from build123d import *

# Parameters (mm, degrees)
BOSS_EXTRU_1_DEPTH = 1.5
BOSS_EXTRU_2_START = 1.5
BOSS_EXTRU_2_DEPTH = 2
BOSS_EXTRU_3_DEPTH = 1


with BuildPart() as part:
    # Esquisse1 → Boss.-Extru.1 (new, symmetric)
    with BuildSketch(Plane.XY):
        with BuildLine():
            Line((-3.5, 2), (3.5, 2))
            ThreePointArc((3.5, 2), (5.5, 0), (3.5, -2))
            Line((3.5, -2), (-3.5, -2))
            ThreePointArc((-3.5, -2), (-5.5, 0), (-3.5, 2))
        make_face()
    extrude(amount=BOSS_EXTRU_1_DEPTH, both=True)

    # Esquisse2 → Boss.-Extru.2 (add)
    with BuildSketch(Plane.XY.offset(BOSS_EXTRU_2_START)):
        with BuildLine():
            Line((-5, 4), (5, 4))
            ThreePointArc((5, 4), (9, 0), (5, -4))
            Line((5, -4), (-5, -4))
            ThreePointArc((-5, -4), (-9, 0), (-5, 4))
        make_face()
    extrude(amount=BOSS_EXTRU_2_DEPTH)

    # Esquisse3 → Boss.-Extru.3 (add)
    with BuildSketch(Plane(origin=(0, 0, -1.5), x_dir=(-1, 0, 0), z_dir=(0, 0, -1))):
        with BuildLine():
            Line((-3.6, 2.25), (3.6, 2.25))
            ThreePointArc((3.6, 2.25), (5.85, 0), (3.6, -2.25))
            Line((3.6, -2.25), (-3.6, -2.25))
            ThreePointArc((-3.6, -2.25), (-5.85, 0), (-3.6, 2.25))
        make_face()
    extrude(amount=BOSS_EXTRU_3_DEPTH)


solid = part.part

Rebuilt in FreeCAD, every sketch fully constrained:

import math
import FreeCAD as App
import Part
import Sketcher
from FreeCAD import Vector
Q = App.Units.Quantity

doc = App.newDocument("Part")
body = doc.addObject("PartDesign::Body", "Body")

# Sketch on XY plane
sketch1 = body.newObject("Sketcher::SketchObject", "Sketch")
sketch1.AttachmentSupport = (doc.getObject("XY_Plane"), [""])
sketch1.MapMode = "FlatFace"
sketch1.addGeometry([
    Part.LineSegment(Vector(3.5, 2, 0), Vector(-3.5, 2, 0)),
    Part.ArcOfCircle(Part.Circle(Vector(-3.5, 0, 0), Vector(0, 0, 1), 2), math.radians(90), math.radians(270)),
    Part.LineSegment(Vector(-3.5, -2, 0), Vector(3.5, -2, 0)),
    Part.ArcOfCircle(Part.Circle(Vector(3.5, 0, 0), Vector(0, 0, 1), 2), math.radians(-90), math.radians(90)),
], False)
sketch1.addConstraint([
    Sketcher.Constraint("Tangent", 0, 2, 1, 1),
    Sketcher.Constraint("Tangent", 1, 2, 2, 1),
    Sketcher.Constraint("Tangent", 2, 2, 3, 1),
    Sketcher.Constraint("Tangent", 3, 2, 0, 1),
    Sketcher.Constraint("Horizontal", 0),
    Sketcher.Constraint("Horizontal", 2),
    Sketcher.Constraint("Symmetric", 1, 3, 3, 3, -1, 1),
    Sketcher.Constraint("Radius", 1, Q("2 mm")),
    Sketcher.Constraint("DistanceX", 0, 2, 0, 1, Q("7 mm")),
])
pad1 = body.newObject("PartDesign::Pad", "Pad")
pad1.Profile = sketch1
pad1.Length = 3
pad1.Midplane = True

# Sketch on XY plane
sketch2 = body.newObject("Sketcher::SketchObject", "Sketch001")
sketch2.AttachmentSupport = (doc.getObject("XY_Plane"), [""])
sketch2.MapMode = "FlatFace"
sketch2.AttachmentOffset = App.Placement(Vector(0, 0, 1.5), App.Rotation())
sketch2.addGeometry([
    Part.LineSegment(Vector(5, 4, 0), Vector(-5, 4, 0)),
    Part.ArcOfCircle(Part.Circle(Vector(-5, 0, 0), Vector(0, 0, 1), 4), math.radians(90), math.radians(270)),
    Part.LineSegment(Vector(-5, -4, 0), Vector(5, -4, 0)),
    Part.ArcOfCircle(Part.Circle(Vector(5, 0, 0), Vector(0, 0, 1), 4), math.radians(-90), math.radians(90)),
], False)
sketch2.addConstraint([
    Sketcher.Constraint("Tangent", 0, 2, 1, 1),
    Sketcher.Constraint("Tangent", 1, 2, 2, 1),
    Sketcher.Constraint("Tangent", 2, 2, 3, 1),
    Sketcher.Constraint("Tangent", 3, 2, 0, 1),
    Sketcher.Constraint("Horizontal", 0),
    Sketcher.Constraint("Horizontal", 2),
    Sketcher.Constraint("Symmetric", 1, 3, 3, 3, -1, 1),
    Sketcher.Constraint("Radius", 1, Q("4 mm")),
    Sketcher.Constraint("DistanceX", 0, 2, 0, 1, Q("10 mm")),
])
pad2 = body.newObject("PartDesign::Pad", "Pad001")
pad2.Profile = sketch2
pad2.Length = 2

# Sketch on XY plane
sketch3 = body.newObject("Sketcher::SketchObject", "Sketch002")
sketch3.AttachmentSupport = (doc.getObject("XY_Plane"), [""])
sketch3.MapMode = "FlatFace"
sketch3.AttachmentOffset = App.Placement(Vector(0, 0, -1.5), App.Rotation())
sketch3.addGeometry([
    Part.LineSegment(Vector(-3.6, 2.25, 0), Vector(3.6, 2.25, 0)),
    Part.ArcOfCircle(Part.Circle(Vector(3.6, 0, 0), Vector(0, 0, 1), 2.25), math.radians(-90), math.radians(90)),
    Part.LineSegment(Vector(3.6, -2.25, 0), Vector(-3.6, -2.25, 0)),
    Part.ArcOfCircle(Part.Circle(Vector(-3.6, 0, 0), Vector(0, 0, 1), 2.25), math.radians(90), math.radians(270)),
], False)
sketch3.addConstraint([
    Sketcher.Constraint("Tangent", 0, 2, 1, 2),
    Sketcher.Constraint("Tangent", 1, 1, 2, 1),
    Sketcher.Constraint("Tangent", 2, 2, 3, 2),
    Sketcher.Constraint("Tangent", 3, 1, 0, 1),
    Sketcher.Constraint("Horizontal", 0),
    Sketcher.Constraint("Horizontal", 2),
    Sketcher.Constraint("Symmetric", 1, 3, 3, 3, -1, 1),
    Sketcher.Constraint("Radius", 1, Q("2.25 mm")),
    Sketcher.Constraint("DistanceX", 0, 1, 0, 2, Q("7.2 mm")),
])
pad3 = body.newObject("PartDesign::Pad", "Pad002")
pad3.Profile = sketch3
pad3.Length = 1
pad3.Reversed = True

doc.recompute()
